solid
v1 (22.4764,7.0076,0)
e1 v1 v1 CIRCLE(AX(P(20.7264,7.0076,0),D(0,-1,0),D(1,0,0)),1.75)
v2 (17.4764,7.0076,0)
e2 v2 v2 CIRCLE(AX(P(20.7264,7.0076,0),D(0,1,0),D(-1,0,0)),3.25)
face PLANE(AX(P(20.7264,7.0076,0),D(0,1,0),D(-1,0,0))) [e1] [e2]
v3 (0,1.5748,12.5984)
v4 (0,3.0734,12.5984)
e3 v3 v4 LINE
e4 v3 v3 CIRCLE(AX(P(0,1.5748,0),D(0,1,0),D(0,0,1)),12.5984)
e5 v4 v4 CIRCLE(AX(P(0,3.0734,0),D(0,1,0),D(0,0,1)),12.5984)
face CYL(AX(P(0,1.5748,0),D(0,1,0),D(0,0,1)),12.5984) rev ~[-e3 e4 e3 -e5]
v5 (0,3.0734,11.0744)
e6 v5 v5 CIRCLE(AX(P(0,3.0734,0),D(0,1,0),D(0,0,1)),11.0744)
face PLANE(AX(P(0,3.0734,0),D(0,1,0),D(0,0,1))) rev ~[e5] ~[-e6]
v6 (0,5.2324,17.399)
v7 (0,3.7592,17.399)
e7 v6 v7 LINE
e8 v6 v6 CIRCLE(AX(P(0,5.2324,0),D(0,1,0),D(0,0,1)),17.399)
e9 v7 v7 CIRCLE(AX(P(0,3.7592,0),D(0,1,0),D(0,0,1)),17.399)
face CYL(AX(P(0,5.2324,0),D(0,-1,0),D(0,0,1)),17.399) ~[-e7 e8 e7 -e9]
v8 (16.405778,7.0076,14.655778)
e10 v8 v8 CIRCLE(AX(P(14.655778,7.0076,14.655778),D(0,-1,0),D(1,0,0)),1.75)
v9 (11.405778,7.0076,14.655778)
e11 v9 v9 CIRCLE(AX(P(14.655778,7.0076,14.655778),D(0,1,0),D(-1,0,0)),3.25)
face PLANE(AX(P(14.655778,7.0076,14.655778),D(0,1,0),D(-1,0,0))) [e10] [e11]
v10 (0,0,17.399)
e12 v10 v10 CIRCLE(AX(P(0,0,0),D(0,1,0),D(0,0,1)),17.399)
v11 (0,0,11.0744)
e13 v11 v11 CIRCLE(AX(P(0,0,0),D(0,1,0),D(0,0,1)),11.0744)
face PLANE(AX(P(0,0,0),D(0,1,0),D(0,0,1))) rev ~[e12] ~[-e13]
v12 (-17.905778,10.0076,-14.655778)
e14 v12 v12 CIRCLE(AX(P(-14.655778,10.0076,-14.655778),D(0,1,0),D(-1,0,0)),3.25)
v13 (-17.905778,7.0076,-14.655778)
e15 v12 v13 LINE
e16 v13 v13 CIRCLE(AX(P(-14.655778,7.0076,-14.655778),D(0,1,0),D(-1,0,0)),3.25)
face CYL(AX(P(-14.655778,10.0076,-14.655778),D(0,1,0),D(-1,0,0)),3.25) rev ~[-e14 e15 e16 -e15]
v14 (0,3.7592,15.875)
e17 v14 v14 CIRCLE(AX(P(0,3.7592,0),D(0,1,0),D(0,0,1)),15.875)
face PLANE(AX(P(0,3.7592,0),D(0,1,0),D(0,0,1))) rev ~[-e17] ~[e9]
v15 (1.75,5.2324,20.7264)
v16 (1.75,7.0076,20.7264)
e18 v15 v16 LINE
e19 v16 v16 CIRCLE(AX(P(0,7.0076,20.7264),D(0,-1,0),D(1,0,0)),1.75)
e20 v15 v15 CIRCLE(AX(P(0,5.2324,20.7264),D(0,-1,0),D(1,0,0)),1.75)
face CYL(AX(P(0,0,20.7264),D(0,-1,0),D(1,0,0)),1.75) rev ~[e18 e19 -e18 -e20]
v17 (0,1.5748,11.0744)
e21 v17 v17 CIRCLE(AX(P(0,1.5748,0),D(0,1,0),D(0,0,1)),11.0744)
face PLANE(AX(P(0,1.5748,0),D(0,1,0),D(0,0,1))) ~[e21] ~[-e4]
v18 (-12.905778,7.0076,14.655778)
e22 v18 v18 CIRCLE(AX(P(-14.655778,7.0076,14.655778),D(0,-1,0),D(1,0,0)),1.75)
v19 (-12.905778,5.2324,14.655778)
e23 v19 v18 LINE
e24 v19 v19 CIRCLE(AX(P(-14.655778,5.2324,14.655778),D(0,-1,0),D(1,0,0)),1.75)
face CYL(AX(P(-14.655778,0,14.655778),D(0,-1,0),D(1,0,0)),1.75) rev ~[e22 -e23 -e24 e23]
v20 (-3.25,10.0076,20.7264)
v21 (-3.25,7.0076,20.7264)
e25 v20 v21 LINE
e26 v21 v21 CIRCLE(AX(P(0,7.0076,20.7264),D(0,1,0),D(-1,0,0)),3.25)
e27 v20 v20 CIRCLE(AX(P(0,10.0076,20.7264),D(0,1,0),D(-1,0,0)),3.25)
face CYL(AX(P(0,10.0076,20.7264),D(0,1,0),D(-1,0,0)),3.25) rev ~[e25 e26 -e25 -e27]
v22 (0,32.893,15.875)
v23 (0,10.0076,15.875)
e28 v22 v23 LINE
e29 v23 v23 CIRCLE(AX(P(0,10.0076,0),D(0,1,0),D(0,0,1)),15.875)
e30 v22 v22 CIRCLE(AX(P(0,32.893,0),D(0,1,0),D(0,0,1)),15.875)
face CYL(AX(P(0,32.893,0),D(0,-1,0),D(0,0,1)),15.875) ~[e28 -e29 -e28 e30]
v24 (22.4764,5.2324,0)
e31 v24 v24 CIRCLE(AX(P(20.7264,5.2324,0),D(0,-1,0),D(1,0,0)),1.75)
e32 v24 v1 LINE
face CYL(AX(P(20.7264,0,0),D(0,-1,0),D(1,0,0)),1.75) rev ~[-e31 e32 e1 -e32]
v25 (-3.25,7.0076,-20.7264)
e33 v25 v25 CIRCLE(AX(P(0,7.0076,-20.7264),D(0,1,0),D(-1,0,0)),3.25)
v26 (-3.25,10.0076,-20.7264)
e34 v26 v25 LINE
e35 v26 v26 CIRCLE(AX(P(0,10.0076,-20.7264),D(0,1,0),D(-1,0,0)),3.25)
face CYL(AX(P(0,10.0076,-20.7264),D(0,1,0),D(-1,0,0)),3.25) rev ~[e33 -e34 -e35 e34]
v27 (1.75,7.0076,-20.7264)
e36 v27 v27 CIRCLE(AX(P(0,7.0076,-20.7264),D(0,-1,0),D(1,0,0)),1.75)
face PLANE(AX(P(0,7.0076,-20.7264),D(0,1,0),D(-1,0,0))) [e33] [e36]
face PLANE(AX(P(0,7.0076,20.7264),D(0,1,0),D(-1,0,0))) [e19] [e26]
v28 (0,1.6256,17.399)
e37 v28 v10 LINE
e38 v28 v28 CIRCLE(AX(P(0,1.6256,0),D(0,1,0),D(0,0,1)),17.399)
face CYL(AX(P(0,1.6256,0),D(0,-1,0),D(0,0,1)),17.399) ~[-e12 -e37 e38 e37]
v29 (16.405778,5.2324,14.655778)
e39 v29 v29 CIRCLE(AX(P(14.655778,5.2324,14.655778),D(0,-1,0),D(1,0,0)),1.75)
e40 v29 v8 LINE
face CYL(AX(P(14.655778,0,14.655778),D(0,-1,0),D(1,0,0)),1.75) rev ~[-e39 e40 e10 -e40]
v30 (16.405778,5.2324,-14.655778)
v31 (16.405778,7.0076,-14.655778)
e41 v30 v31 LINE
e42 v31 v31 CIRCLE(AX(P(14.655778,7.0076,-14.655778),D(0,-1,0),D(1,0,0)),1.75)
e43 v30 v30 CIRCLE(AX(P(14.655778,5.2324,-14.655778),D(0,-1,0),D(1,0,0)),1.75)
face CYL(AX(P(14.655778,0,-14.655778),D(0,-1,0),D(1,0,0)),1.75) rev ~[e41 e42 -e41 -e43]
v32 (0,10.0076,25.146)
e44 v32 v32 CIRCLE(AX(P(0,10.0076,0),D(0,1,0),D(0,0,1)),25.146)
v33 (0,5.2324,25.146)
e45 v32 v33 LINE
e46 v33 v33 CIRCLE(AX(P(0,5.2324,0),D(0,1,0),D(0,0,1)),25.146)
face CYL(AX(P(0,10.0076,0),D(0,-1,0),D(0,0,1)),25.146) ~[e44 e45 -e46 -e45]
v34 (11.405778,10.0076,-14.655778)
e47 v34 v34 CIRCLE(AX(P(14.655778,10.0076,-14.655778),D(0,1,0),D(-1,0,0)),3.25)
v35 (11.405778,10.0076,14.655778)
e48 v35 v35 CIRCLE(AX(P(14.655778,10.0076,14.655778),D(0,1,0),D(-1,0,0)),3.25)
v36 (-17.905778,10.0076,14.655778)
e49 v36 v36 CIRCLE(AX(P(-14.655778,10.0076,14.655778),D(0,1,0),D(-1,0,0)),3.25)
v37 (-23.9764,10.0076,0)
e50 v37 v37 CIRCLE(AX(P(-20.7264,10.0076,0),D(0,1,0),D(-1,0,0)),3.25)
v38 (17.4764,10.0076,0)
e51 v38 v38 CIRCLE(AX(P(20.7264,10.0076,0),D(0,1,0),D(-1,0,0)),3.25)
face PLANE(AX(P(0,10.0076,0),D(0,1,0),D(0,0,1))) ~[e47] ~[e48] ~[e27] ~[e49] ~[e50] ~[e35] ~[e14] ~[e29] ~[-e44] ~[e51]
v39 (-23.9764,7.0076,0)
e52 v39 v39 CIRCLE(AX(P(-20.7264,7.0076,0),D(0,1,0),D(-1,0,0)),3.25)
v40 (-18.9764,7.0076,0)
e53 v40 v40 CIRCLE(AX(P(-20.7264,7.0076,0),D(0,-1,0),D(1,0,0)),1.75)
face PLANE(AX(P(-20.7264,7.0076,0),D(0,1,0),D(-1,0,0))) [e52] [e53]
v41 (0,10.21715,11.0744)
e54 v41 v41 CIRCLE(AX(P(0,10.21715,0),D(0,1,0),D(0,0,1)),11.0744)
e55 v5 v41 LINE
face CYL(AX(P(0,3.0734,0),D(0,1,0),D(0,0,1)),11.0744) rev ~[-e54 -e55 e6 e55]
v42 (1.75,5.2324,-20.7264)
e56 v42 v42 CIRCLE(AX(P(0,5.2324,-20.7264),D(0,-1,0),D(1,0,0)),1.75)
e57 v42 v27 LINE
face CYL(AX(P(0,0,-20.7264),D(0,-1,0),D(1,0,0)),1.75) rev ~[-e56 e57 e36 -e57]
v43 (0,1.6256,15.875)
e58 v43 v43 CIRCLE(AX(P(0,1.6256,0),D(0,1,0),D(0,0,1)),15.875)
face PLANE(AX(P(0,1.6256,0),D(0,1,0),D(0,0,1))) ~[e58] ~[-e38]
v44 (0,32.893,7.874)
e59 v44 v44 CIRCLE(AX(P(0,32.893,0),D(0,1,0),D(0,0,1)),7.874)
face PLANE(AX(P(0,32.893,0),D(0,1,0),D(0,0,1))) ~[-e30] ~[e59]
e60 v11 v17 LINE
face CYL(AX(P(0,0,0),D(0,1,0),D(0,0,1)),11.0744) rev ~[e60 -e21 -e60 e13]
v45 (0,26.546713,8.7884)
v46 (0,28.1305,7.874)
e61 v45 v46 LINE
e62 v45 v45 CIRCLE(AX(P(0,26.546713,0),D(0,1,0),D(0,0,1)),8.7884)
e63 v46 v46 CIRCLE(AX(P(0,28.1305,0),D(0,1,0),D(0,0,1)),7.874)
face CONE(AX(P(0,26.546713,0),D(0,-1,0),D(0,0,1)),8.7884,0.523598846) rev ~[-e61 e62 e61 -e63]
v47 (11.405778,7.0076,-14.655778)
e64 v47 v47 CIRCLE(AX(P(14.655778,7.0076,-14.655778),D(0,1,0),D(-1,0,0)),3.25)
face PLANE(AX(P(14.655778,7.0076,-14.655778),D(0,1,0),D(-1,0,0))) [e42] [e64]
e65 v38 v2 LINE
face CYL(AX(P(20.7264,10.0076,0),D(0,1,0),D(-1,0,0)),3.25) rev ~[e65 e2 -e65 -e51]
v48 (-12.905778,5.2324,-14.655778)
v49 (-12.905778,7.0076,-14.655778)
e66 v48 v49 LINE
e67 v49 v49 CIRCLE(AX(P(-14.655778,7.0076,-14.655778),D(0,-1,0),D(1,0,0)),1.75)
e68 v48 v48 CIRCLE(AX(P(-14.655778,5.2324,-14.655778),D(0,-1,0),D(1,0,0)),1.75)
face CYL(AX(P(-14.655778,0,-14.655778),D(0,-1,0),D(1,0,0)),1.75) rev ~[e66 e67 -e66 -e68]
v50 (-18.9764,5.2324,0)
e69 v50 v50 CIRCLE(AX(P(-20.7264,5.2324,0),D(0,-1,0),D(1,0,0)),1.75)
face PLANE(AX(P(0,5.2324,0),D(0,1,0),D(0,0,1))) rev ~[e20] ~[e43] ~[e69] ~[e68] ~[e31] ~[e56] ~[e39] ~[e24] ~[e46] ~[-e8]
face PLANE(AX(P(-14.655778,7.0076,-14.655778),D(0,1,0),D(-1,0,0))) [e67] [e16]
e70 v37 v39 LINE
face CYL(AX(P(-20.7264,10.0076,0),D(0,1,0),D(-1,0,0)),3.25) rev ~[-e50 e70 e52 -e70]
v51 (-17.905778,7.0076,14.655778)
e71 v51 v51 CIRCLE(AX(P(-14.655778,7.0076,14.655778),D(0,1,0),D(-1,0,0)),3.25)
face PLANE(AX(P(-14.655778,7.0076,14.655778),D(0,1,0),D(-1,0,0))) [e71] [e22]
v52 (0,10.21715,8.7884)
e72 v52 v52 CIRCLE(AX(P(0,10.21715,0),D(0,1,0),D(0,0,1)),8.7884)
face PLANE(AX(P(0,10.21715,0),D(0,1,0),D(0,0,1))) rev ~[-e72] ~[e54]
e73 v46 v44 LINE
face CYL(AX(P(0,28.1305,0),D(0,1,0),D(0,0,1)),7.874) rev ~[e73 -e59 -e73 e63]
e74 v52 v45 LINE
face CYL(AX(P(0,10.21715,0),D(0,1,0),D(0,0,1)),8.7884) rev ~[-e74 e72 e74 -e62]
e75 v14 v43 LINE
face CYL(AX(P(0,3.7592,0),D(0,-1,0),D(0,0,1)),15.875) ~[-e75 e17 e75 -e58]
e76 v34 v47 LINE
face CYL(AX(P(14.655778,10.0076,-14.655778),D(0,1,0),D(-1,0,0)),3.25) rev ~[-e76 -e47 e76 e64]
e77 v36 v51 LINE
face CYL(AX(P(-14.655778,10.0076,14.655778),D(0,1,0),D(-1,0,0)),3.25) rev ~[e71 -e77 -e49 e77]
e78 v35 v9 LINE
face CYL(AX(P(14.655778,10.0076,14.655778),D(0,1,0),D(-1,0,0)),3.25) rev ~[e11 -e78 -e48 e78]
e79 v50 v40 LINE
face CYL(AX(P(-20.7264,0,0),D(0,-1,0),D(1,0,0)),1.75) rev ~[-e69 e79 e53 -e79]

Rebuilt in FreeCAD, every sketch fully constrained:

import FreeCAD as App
import Part
import Sketcher
Q = App.Units.Quantity

doc = App.newDocument("Part")
body = doc.addObject("PartDesign::Body", "Body")

sketch1 = doc.addObject("Sketcher::SketchObject", "Sketch")
body.addObject(sketch1)
sketch1.AttachmentSupport = (doc.YZ_Plane, [""])
sketch1.MapMode = "FlatFace"
sketch1.addGeometry(Part.LineSegment(App.Vector(1.6256, 17.399, 0), App.Vector(0, 17.399, 0)), False)
sketch1.addGeometry(Part.LineSegment(App.Vector(0, 17.399, 0), App.Vector(0, 11.0744, 0)), False)
sketch1.addGeometry(Part.LineSegment(App.Vector(0, 11.0744, 0), App.Vector(1.5748, 11.0744, 0)), False)
sketch1.addGeometry(Part.LineSegment(App.Vector(1.5748, 11.0744, 0), App.Vector(1.5748, 12.5984, 0)), False)
sketch1.addGeometry(Part.LineSegment(App.Vector(1.5748, 12.5984, 0), App.Vector(3.0734, 12.5984, 0)), False)
sketch1.addGeometry(Part.LineSegment(App.Vector(3.0734, 12.5984, 0), App.Vector(3.0734, 11.0744, 0)), False)
sketch1.addGeometry(Part.LineSegment(App.Vector(3.0734, 11.0744, 0), App.Vector(10.21715, 11.0744, 0)), False)
sketch1.addGeometry(Part.LineSegment(App.Vector(10.21715, 11.0744, 0), App.Vector(10.21715, 8.7884, 0)), False)
sketch1.addGeometry(Part.LineSegment(App.Vector(10.21715, 8.7884, 0), App.Vector(26.546713, 8.7884, 0)), False)
sketch1.addGeometry(Part.LineSegment(App.Vector(26.546713, 8.7884, 0), App.Vector(28.1305, 7.874, 0)), False)
sketch1.addGeometry(Part.LineSegment(App.Vector(28.1305, 7.874, 0), App.Vector(32.893, 7.874, 0)), False)
sketch1.addGeometry(Part.LineSegment(App.Vector(32.893, 7.874, 0), App.Vector(32.893, 15.875, 0)), False)
sketch1.addGeometry(Part.LineSegment(App.Vector(32.893, 15.875, 0), App.Vector(10.0076, 15.875, 0)), False)
sketch1.addGeometry(Part.LineSegment(App.Vector(10.0076, 15.875, 0), App.Vector(10.0076, 25.146, 0)), False)
sketch1.addGeometry(Part.LineSegment(App.Vector(10.0076, 25.146, 0), App.Vector(5.2324, 25.146, 0)), False)
sketch1.addGeometry(Part.LineSegment(App.Vector(5.2324, 25.146, 0), App.Vector(5.2324, 17.399, 0)), False)
sketch1.addGeometry(Part.LineSegment(App.Vector(5.2324, 17.399, 0), App.Vector(3.7592, 17.399, 0)), False)
sketch1.addGeometry(Part.LineSegment(App.Vector(3.7592, 17.399, 0), App.Vector(3.7592, 15.875, 0)), False)
sketch1.addGeometry(Part.LineSegment(App.Vector(3.7592, 15.875, 0), App.Vector(1.6256, 15.875, 0)), False)
sketch1.addGeometry(Part.LineSegment(App.Vector(1.6256, 15.875, 0), App.Vector(1.6256, 17.399, 0)), False)
sketch1.addConstraint(Sketcher.Constraint("Coincident", 0, 2, 1, 1))
sketch1.addConstraint(Sketcher.Constraint("Coincident", 1, 2, 2, 1))
sketch1.addConstraint(Sketcher.Constraint("Coincident", 2, 2, 3, 1))
sketch1.addConstraint(Sketcher.Constraint("Coincident", 3, 2, 4, 1))
sketch1.addConstraint(Sketcher.Constraint("Coincident", 4, 2, 5, 1))
sketch1.addConstraint(Sketcher.Constraint("Coincident", 5, 2, 6, 1))
sketch1.addConstraint(Sketcher.Constraint("Coincident", 6, 2, 7, 1))
sketch1.addConstraint(Sketcher.Constraint("Coincident", 7, 2, 8, 1))
sketch1.addConstraint(Sketcher.Constraint("Coincident", 8, 2, 9, 1))
sketch1.addConstraint(Sketcher.Constraint("Coincident", 9, 2, 10, 1))
sketch1.addConstraint(Sketcher.Constraint("Coincident", 10, 2, 11, 1))
sketch1.addConstraint(Sketcher.Constraint("Coincident", 11, 2, 12, 1))
sketch1.addConstraint(Sketcher.Constraint("Coincident", 12, 2, 13, 1))
sketch1.addConstraint(Sketcher.Constraint("Coincident", 13, 2, 14, 1))
sketch1.addConstraint(Sketcher.Constraint("Coincident", 14, 2, 15, 1))
sketch1.addConstraint(Sketcher.Constraint("Coincident", 15, 2, 16, 1))
sketch1.addConstraint(Sketcher.Constraint("Coincident", 16, 2, 17, 1))
sketch1.addConstraint(Sketcher.Constraint("Coincident", 17, 2, 18, 1))
sketch1.addConstraint(Sketcher.Constraint("Coincident", 18, 2, 19, 1))
sketch1.addConstraint(Sketcher.Constraint("Coincident", 19, 2, 0, 1))
sketch1.addConstraint(Sketcher.Constraint("Horizontal", 0))
sketch1.addConstraint(Sketcher.Constraint("Vertical", 1))
sketch1.addConstraint(Sketcher.Constraint("Horizontal", 2))
sketch1.addConstraint(Sketcher.Constraint("Vertical", 3))
sketch1.addConstraint(Sketcher.Constraint("Horizontal", 4))
sketch1.addConstraint(Sketcher.Constraint("Vertical", 5))
sketch1.addConstraint(Sketcher.Constraint("Horizontal", 6))
sketch1.addConstraint(Sketcher.Constraint("Vertical", 7))
sketch1.addConstraint(Sketcher.Constraint("Horizontal", 8))
sketch1.addConstraint(Sketcher.Constraint("Horizontal", 10))
sketch1.addConstraint(Sketcher.Constraint("Vertical", 11))
sketch1.addConstraint(Sketcher.Constraint("Horizontal", 12))
sketch1.addConstraint(Sketcher.Constraint("Vertical", 13))
sketch1.addConstraint(Sketcher.Constraint("Horizontal", 14))
sketch1.addConstraint(Sketcher.Constraint("Vertical", 15))
sketch1.addConstraint(Sketcher.Constraint("Horizontal", 16))
sketch1.addConstraint(Sketcher.Constraint("Vertical", 17))
sketch1.addConstraint(Sketcher.Constraint("Horizontal", 18))
sketch1.addConstraint(Sketcher.Constraint("Vertical", 19))
sketch1.addConstraint(Sketcher.Constraint("PointOnObject", 0, 2, -2))
sketch1.addConstraint(Sketcher.Constraint("Horizontal", 2, 2, 5, 2))
sketch1.addConstraint(Sketcher.Constraint("Horizontal", 0, 2, 15, 2))
sketch1.addConstraint(Sketcher.Constraint("Horizontal", 12, 2, 17, 2))
sketch1.addConstraint(Sketcher.Constraint("Equal", 5, 17))
sketch1.addConstraint(Sketcher.Constraint("Angle", 9, Q("-30.000004 deg")))
sketch1.addConstraint(Sketcher.Constraint("DistanceY", 3, 1, 3, 2, Q("0.06 in")))
sketch1.addConstraint(Sketcher.Constraint("DistanceY", 7, 2, 7, 1, Q("0.09 in")))
sketch1.addConstraint(Sketcher.Constraint("DistanceX", 0, 2, 0, 1, Q("0.064 in")))
sketch1.addConstraint(Sketcher.Constraint("DistanceX", 2, 1, 2, 2, Q("0.062 in")))
sketch1.addConstraint(Sketcher.Constraint("DistanceX", 4, 1, 4, 2, Q("0.059 in")))
sketch1.addConstraint(Sketcher.Constraint("DistanceX", 6, 1, 6, 2, Q("0.28125 in")))
sketch1.addConstraint(Sketcher.Constraint("DistanceX", 10, 1, 10, 2, Q("0.1875 in")))
sketch1.addConstraint(Sketcher.Constraint("DistanceX", 12, 2, 12, 1, Q("0.901 in")))
sketch1.addConstraint(Sketcher.Constraint("DistanceX", 14, 2, 14, 1, Q("0.188 in")))
sketch1.addConstraint(Sketcher.Constraint("DistanceX", 16, 2, 16, 1, Q("0.058 in")))
sketch1.addConstraint(Sketcher.Constraint("DistanceX", 18, 2, 18, 1, Q("0.084 in")))
sketch1.addConstraint(Sketcher.Constraint("DistanceY", 1, 2, 1, 1, Q("0.249 in")))
sketch1.addConstraint(Sketcher.Constraint("DistanceY", 11, 1, 11, 2, Q("0.315 in")))
sketch1.addConstraint(Sketcher.Constraint("DistanceY", 13, 1, 13, 2, Q("0.365 in")))
sketch1.addConstraint(Sketcher.Constraint("DistanceY", -1, 1, 9, 2, Q("0.31 in")))
revolution = doc.addObject("PartDesign::Revolution", "Revolution")
body.addObject(revolution)
revolution.Profile = sketch1
revolution.ReferenceAxis = (sketch1, ["H_Axis"])
revolution.Angle = 360

sketch2 = doc.addObject("Sketcher::SketchObject", "Sketch001")
body.addObject(sketch2)
sketch2.AttachmentSupport = (doc.XZ_Plane, [""])
sketch2.MapMode = "FlatFace"
sketch2.AttachmentOffset = App.Placement(App.Vector(0, 0, -0.394 * 25.4), App.Rotation())
sketch2.addGeometry(Part.Circle(App.Vector(0, 20.7264, 0), App.Vector(0, 0, 1), 3.25), False)
sketch2.addGeometry(Part.Circle(App.Vector(14.655778, 14.655778, 0), App.Vector(0, 0, 1), 3.25), False)
sketch2.addGeometry(Part.Circle(App.Vector(20.7264, 0, 0), App.Vector(0, 0, 1), 3.25), False)
sketch2.addGeometry(Part.Circle(App.Vector(14.655778, -14.655778, 0), App.Vector(0, 0, 1), 3.25), False)
sketch2.addGeometry(Part.Circle(App.Vector(0, -20.7264, 0), App.Vector(0, 0, 1), 3.25), False)
sketch2.addGeometry(Part.Circle(App.Vector(-14.655778, -14.655778, 0), App.Vector(0, 0, 1), 3.25), False)
sketch2.addGeometry(Part.Circle(App.Vector(-20.7264, 0, 0), App.Vector(0, 0, 1), 3.25), False)
sketch2.addGeometry(Part.Circle(App.Vector(-14.655778, 14.655778, 0), App.Vector(0, 0, 1), 3.25), False)
sketch2.addConstraint(Sketcher.Constraint("Equal", 0, 1))
sketch2.addConstraint(Sketcher.Constraint("Equal", 1, 2))
sketch2.addConstraint(Sketcher.Constraint("Equal", 2, 3))
sketch2.addConstraint(Sketcher.Constraint("Equal", 3, 4))
sketch2.addConstraint(Sketcher.Constraint("Equal", 4, 5))
sketch2.addConstraint(Sketcher.Constraint("Equal", 5, 6))
sketch2.addConstraint(Sketcher.Constraint("Equal", 6, 7))
sketch2.addConstraint(Sketcher.Constraint("Symmetric", 0, 3, 4, 3, -1, 1))
sketch2.addConstraint(Sketcher.Constraint("Symmetric", 1, 3, 5, 3, -1, 1))
sketch2.addConstraint(Sketcher.Constraint("Symmetric", 2, 3, 6, 3, -1, 1))
sketch2.addConstraint(Sketcher.Constraint("Symmetric", 3, 3, 7, 3, -1, 1))
sketch2.addConstraint(Sketcher.Constraint("Symmetric", 3, 3, 5, 3, -2))
sketch2.addConstraint(Sketcher.Constraint("PointOnObject", 0, 3, -2))
sketch2.addConstraint(Sketcher.Constraint("PointOnObject", 2, 3, -1))
sketch2.addConstraint(Sketcher.Constraint("Diameter", 0, Q("6.5 mm")))
sketch2.addConstraint(Sketcher.Constraint("DistanceY", -1, 1, 0, 3, Q("0.816 in")))
sketch2.addConstraint(Sketcher.Constraint("DistanceX", -1, 1, 2, 3, Q("0.816 in")))
sketch2.addConstraint(Sketcher.Constraint("DistanceY", 3, 3, 0, 3, Q("35.382178 mm")))
sketch2.addConstraint(Sketcher.Constraint("DistanceX", 5, 3, 2, 3, Q("35.382178 mm")))
pocket1 = doc.addObject("PartDesign::Pocket", "Pocket")
body.addObject(pocket1)
pocket1.Profile = sketch2
pocket1.Length = 3
pocket1.Reversed = True

sketch3 = doc.addObject("Sketcher::SketchObject", "Sketch002")
body.addObject(sketch3)
sketch3.AttachmentSupport = (doc.XZ_Plane, [""])
sketch3.MapMode = "FlatFace"
sketch3.addGeometry(Part.Circle(App.Vector(0, 20.7264, 0), App.Vector(0, 0, 1), 1.75), False)
sketch3.addGeometry(Part.Circle(App.Vector(-14.655778, 14.655778, 0), App.Vector(0, 0, 1), 1.75), False)
sketch3.addGeometry(Part.Circle(App.Vector(-20.7264, 0, 0), App.Vector(0, 0, 1), 1.75), False)
sketch3.addGeometry(Part.Circle(App.Vector(-14.655778, -14.655778, 0), App.Vector(0, 0, 1), 1.75), False)
sketch3.addGeometry(Part.Circle(App.Vector(0, -20.7264, 0), App.Vector(0, 0, 1), 1.75), False)
sketch3.addGeometry(Part.Circle(App.Vector(14.655778, -14.655778, 0), App.Vector(0, 0, 1), 1.75), False)
sketch3.addGeometry(Part.Circle(App.Vector(20.7264, 0, 0), App.Vector(0, 0, 1), 1.75), False)
sketch3.addGeometry(Part.Circle(App.Vector(14.655778, 14.655778, 0), App.Vector(0, 0, 1), 1.75), False)
sketch3.addConstraint(Sketcher.Constraint("Equal", 0, 1))
sketch3.addConstraint(Sketcher.Constraint("Equal", 1, 2))
sketch3.addConstraint(Sketcher.Constraint("Equal", 2, 3))
sketch3.addConstraint(Sketcher.Constraint("Equal", 3, 4))
sketch3.addConstraint(Sketcher.Constraint("Equal", 4, 5))
sketch3.addConstraint(Sketcher.Constraint("Equal", 5, 6))
sketch3.addConstraint(Sketcher.Constraint("Equal", 6, 7))
sketch3.addConstraint(Sketcher.Constraint("Symmetric", 0, 3, 4, 3, -1, 1))
sketch3.addConstraint(Sketcher.Constraint("Symmetric", 1, 3, 5, 3, -1, 1))
sketch3.addConstraint(Sketcher.Constraint("Symmetric", 2, 3, 6, 3, -1, 1))
sketch3.addConstraint(Sketcher.Constraint("Symmetric", 3, 3, 7, 3, -1, 1))
sketch3.addConstraint(Sketcher.Constraint("Symmetric", 3, 3, 5, 3, -2))
sketch3.addConstraint(Sketcher.Constraint("PointOnObject", 0, 3, -2))
sketch3.addConstraint(Sketcher.Constraint("PointOnObject", 2, 3, -1))
sketch3.addConstraint(Sketcher.Constraint("Diameter", 0, Q("3.5 mm")))
sketch3.addConstraint(Sketcher.Constraint("DistanceY", -1, 1, 0, 3, Q("0.816 in")))
sketch3.addConstraint(Sketcher.Constraint("DistanceX", 2, 3, -1, 1, Q("0.816 in")))
sketch3.addConstraint(Sketcher.Constraint("DistanceY", 3, 3, 0, 3, Q("35.382178 mm")))
sketch3.addConstraint(Sketcher.Constraint("DistanceX", 2, 3, 5, 3, Q("35.382178 mm")))
pocket2 = doc.addObject("PartDesign::Pocket", "Pocket001")
body.addObject(pocket2)
pocket2.Profile = sketch3
pocket2.Type = "ThroughAll"

doc.recompute()
